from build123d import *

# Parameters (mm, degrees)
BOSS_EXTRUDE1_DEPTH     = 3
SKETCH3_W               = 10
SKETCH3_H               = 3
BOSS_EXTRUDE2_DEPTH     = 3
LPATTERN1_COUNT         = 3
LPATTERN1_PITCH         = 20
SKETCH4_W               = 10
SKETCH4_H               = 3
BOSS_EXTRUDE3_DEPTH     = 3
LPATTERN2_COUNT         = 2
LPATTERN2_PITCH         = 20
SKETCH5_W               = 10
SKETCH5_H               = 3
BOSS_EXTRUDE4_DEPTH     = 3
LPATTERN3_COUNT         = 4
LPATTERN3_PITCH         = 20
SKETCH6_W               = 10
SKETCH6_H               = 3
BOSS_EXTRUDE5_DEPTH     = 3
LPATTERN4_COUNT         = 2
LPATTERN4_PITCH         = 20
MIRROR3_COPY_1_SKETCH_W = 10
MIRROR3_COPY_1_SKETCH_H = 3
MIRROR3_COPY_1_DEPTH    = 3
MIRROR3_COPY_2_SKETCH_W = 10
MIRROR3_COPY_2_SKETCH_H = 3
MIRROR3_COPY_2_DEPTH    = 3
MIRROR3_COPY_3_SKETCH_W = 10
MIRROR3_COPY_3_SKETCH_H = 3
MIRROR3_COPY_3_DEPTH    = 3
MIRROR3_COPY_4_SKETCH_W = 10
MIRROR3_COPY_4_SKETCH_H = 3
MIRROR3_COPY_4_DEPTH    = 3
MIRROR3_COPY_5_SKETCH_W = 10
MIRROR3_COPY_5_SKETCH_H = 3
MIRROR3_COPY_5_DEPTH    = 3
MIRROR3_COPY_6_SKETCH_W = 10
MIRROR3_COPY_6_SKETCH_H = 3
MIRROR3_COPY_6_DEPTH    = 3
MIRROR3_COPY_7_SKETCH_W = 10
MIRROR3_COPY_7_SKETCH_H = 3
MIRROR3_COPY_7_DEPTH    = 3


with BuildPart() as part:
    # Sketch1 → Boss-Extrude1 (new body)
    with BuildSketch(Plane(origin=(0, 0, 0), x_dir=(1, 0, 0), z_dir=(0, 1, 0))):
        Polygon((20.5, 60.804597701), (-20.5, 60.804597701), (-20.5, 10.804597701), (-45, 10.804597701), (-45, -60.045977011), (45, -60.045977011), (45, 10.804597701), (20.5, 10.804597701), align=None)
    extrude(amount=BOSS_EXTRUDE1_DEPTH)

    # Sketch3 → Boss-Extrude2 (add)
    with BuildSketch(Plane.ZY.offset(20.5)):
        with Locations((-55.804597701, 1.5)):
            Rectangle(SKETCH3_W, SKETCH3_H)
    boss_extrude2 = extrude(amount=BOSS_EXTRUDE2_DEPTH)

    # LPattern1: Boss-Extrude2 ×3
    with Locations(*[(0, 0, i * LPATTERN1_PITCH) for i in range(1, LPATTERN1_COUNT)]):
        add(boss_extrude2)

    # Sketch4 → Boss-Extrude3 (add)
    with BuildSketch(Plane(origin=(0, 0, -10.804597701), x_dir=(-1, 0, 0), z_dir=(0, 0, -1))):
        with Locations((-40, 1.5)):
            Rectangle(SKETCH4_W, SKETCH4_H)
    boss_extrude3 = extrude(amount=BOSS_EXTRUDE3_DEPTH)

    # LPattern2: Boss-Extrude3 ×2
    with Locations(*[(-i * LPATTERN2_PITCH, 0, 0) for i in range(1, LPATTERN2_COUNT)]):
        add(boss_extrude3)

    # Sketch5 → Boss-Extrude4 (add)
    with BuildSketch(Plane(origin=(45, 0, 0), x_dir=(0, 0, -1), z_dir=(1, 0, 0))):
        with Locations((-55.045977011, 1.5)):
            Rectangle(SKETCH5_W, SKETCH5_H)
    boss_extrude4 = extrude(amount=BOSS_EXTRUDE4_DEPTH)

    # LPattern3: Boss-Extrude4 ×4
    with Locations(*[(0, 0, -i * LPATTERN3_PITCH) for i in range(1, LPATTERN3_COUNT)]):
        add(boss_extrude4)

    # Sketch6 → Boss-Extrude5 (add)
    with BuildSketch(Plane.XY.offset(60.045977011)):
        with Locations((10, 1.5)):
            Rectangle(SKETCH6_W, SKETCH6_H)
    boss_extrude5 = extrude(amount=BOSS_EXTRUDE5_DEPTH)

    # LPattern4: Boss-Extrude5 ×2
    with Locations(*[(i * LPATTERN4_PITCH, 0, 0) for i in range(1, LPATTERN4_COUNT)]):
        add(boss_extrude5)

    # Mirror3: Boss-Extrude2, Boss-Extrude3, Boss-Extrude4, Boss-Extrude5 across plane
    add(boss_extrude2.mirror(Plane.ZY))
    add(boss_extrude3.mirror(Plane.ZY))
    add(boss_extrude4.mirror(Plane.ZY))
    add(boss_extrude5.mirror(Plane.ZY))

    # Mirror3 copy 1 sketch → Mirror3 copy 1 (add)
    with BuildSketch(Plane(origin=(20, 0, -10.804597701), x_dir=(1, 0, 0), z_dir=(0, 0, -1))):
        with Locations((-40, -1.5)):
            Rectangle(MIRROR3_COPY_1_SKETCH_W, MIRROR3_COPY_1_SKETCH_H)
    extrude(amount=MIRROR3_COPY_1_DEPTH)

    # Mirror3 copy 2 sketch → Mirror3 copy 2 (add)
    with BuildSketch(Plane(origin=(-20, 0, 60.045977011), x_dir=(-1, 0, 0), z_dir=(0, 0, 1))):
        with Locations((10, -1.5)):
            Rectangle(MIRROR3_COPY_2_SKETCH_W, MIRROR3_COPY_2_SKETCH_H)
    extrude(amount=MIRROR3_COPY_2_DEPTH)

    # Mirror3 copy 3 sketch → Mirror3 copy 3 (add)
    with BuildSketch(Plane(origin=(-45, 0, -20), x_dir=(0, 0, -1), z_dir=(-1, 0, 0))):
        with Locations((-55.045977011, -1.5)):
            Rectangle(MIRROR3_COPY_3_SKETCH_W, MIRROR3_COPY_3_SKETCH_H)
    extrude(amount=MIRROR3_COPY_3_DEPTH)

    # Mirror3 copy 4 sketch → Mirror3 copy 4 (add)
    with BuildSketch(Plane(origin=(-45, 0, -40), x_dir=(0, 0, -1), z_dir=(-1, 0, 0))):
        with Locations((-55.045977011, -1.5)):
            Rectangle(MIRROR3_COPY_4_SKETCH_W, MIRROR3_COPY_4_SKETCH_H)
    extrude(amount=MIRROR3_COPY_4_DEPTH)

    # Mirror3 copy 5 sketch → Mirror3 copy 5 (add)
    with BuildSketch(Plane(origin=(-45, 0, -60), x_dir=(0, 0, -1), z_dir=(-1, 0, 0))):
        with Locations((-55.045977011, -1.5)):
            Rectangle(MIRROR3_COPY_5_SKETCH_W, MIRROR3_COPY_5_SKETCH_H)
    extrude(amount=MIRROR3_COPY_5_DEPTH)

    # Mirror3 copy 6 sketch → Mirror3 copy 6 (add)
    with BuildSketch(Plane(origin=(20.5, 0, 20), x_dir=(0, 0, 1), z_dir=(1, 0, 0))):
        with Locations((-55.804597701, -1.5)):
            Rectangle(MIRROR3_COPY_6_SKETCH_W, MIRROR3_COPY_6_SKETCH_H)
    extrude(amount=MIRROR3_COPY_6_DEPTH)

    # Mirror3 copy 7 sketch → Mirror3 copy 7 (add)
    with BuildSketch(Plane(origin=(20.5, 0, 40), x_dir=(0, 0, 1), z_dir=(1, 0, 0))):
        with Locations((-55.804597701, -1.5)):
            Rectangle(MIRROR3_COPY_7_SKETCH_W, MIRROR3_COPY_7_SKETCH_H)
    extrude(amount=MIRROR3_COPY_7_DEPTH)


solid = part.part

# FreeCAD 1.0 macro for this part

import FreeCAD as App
import Part
import Sketcher

V = App.Vector


def add_polygon(sketch, points):
    """Adds a closed chain of lines whose ends are joined by coincident constraints."""
    first, n = sketch.GeometryCount, len(points)
    for a, b in zip(points, points[1:] + points[:1]):
        sketch.addGeometry(Part.LineSegment(App.Vector(*a, 0), App.Vector(*b, 0)), False)
    for i in range(n):
        sketch.addConstraint(Sketcher.Constraint("Coincident", first + i, 2, first + (i + 1) % n, 1))

doc = App.newDocument("Part")
body = doc.addObject("PartDesign::Body", "Body")

sketch1 = body.newObject("Sketcher::SketchObject", "Sketch")
sketch1.AttachmentSupport = (doc.getObject("XZ_Plane"), [""])
sketch1.MapMode = "FlatFace"
add_polygon(sketch1, [(20, -61), (-20, -61), (-20, -11), (-45, -11), (-45, 60), (45, 60), (45, -11), (20, -11)])
sketch1.addConstraint(Sketcher.Constraint("Horizontal", 0))
sketch1.addConstraint(Sketcher.Constraint("Vertical", 1))
sketch1.addConstraint(Sketcher.Constraint("Horizontal", 2))
sketch1.addConstraint(Sketcher.Constraint("Vertical", 3))
sketch1.addConstraint(Sketcher.Constraint("Horizontal", 4))
sketch1.addConstraint(Sketcher.Constraint("Vertical", 5))
sketch1.addConstraint(Sketcher.Constraint("Horizontal", 6))
sketch1.addConstraint(Sketcher.Constraint("Vertical", 7))
sketch1.addConstraint(Sketcher.Constraint("Symmetric", 2, 2, 5, 2, -2))
sketch1.addConstraint(Sketcher.Constraint("Equal", 2, 6))
sketch1.addConstraint(Sketcher.Constraint("DistanceX", 0, 2, 0, 1, 41.0))
sketch1.addConstraint(Sketcher.Constraint("DistanceX", 4, 1, 4, 2, 90.0))
sketch1.addConstraint(Sketcher.Constraint("DistanceY", 1, 1, 1, 2, 50.0))
sketch1.addConstraint(Sketcher.Constraint("DistanceY", 3, 1, 3, 2, 70.850575))
sketch1.addConstraint(Sketcher.Constraint("DistanceY", 0, 2, -1, 1, 60.804598))
pad1 = body.newObject("PartDesign::Pad", "Pad")
pad1.Profile = sketch1
pad1.Length = 3
pad1.Reversed = True

sketch2 = body.newObject("Sketcher::SketchObject", "Sketch001")
sketch2.AttachmentSupport = (doc.getObject("YZ_Plane"), [""])
sketch2.MapMode = "FlatFace"
sketch2.AttachmentOffset = App.Placement(V(0, 0, -20.5), App.Rotation())
add_polygon(sketch2, [(3, -60.8), (0, -60.8), (0, -50.8), (3, -50.8)])
sketch2.addConstraint(Sketcher.Constraint("Horizontal", 0))
sketch2.addConstraint(Sketcher.Constraint("Vertical", 1))
sketch2.addConstraint(Sketcher.Constraint("Horizontal", 2))
sketch2.addConstraint(Sketcher.Constraint("Vertical", 3))
sketch2.addConstraint(Sketcher.Constraint("PointOnObject", 0, 2, -2))
sketch2.addConstraint(Sketcher.Constraint("DistanceX", 0, 2, 0, 1, 3.0))
sketch2.addConstraint(Sketcher.Constraint("DistanceY", 1, 1, 1, 2, 10.0))
sketch2.addConstraint(Sketcher.Constraint("DistanceY", 0, 2, -1, 1, 60.804598))
pad2 = body.newObject("PartDesign::Pad", "Pad001")
pad2.Profile = sketch2
pad2.Length = 3
pad2.Reversed = True
doc.recompute()

linearpattern = body.newObject("PartDesign::LinearPattern", "LinearPattern")
linearpattern.Originals = [pad2]
linearpattern.Direction = (doc.getObject("Z_Axis"), [""])
linearpattern.Mode = "offset"
linearpattern.Offset = 20
linearpattern.Occurrences = 3
body.Tip = linearpattern

sketch3 = body.newObject("Sketcher::SketchObject", "Sketch002")
sketch3.AttachmentSupport = (doc.getObject("XY_Plane"), [""])
sketch3.MapMode = "FlatFace"
sketch3.AttachmentOffset = App.Placement(V(0, 0, -10.804598), App.Rotation())
add_polygon(sketch3, [(45, 3), (45, 0), (35, 0), (35, 3)])
sketch3.addConstraint(Sketcher.Constraint("Vertical", 0))
sketch3.addConstraint(Sketcher.Constraint("Horizontal", 1))
sketch3.addConstraint(Sketcher.Constraint("Vertical", 2))
sketch3.addConstraint(Sketcher.Constraint("Horizontal", 3))
sketch3.addConstraint(Sketcher.Constraint("PointOnObject", 0, 2, -1))
sketch3.addConstraint(Sketcher.Constraint("DistanceX", 1, 2, 1, 1, 10.0))
sketch3.addConstraint(Sketcher.Constraint("DistanceY", 0, 2, 0, 1, 3.0))
sketch3.addConstraint(Sketcher.Constraint("DistanceX", -1, 1, 0, 2, 45.0))
pad3 = body.newObject("PartDesign::Pad", "Pad002")
pad3.Profile = sketch3
pad3.Length = 3
pad3.Reversed = True
doc.recompute()

linearpattern2 = body.newObject("PartDesign::LinearPattern", "LinearPattern001")
linearpattern2.Originals = [pad3]
linearpattern2.Direction = (doc.getObject("X_Axis"), [""])
linearpattern2.Mode = "offset"
linearpattern2.Offset = 20
linearpattern2.Occurrences = 2
linearpattern2.Reversed = True
body.Tip = linearpattern2

sketch4 = body.newObject("Sketcher::SketchObject", "Sketch003")
sketch4.AttachmentSupport = (doc.getObject("YZ_Plane"), [""])
sketch4.MapMode = "FlatFace"
sketch4.AttachmentOffset = App.Placement(V(0, 0, 45), App.Rotation())
add_polygon(sketch4, [(3, 60), (0, 60), (0, 50), (3, 50)])
sketch4.addConstraint(Sketcher.Constraint("Horizontal", 0))
sketch4.addConstraint(Sketcher.Constraint("Vertical", 1))
sketch4.addConstraint(Sketcher.Constraint("Horizontal", 2))
sketch4.addConstraint(Sketcher.Constraint("Vertical", 3))
sketch4.addConstraint(Sketcher.Constraint("PointOnObject", 0, 2, -2))
sketch4.addConstraint(Sketcher.Constraint("DistanceX", 0, 2, 0, 1, 3.0))
sketch4.addConstraint(Sketcher.Constraint("DistanceY", 1, 2, 1, 1, 10.0))
sketch4.addConstraint(Sketcher.Constraint("DistanceY", -1, 1, 0, 2, 60.045977))
pad4 = body.newObject("PartDesign::Pad", "Pad003")
pad4.Profile = sketch4
pad4.Length = 3
doc.recompute()

linearpattern3 = body.newObject("PartDesign::LinearPattern", "LinearPattern002")
linearpattern3.Originals = [pad4]
linearpattern3.Direction = (doc.getObject("Z_Axis"), [""])
linearpattern3.Mode = "offset"
linearpattern3.Offset = 20
linearpattern3.Occurrences = 4
linearpattern3.Reversed = True
body.Tip = linearpattern3

sketch5 = body.newObject("Sketcher::SketchObject", "Sketch004")
sketch5.AttachmentSupport = (doc.getObject("XY_Plane"), [""])
sketch5.MapMode = "FlatFace"
sketch5.AttachmentOffset = App.Placement(V(0, 0, 60.045977), App.Rotation())
add_polygon(sketch5, [(5, 3), (5, 0), (15, 0), (15, 3)])
sketch5.addConstraint(Sketcher.Constraint("Vertical", 0))
sketch5.addConstraint(Sketcher.Constraint("Horizontal", 1))
sketch5.addConstraint(Sketcher.Constraint("Vertical", 2))
sketch5.addConstraint(Sketcher.Constraint("Horizontal", 3))
sketch5.addConstraint(Sketcher.Constraint("PointOnObject", 0, 2, -1))
sketch5.addConstraint(Sketcher.Constraint("DistanceX", 1, 1, 1, 2, 10.0))
sketch5.addConstraint(Sketcher.Constraint("DistanceY", 0, 2, 0, 1, 3.0))
sketch5.addConstraint(Sketcher.Constraint("DistanceX", -1, 1, 0, 2, 5.0))
pad5 = body.newObject("PartDesign::Pad", "Pad004")
pad5.Profile = sketch5
pad5.Length = 3
doc.recompute()

linearpattern4 = body.newObject("PartDesign::LinearPattern", "LinearPattern003")
linearpattern4.Originals = [pad5]
linearpattern4.Direction = (doc.getObject("X_Axis"), [""])
linearpattern4.Mode = "offset"
linearpattern4.Offset = 20
linearpattern4.Occurrences = 2
body.Tip = linearpattern4
doc.recompute()

mirrored = body.newObject("PartDesign::Mirrored", "Mirrored")
mirrored.Originals = [pad2, pad3, pad4, pad5]
mirrored.MirrorPlane = (doc.getObject("YZ_Plane"), [""])
body.Tip = mirrored

sketch6 = body.newObject("Sketcher::SketchObject", "Sketch005")
sketch6.AttachmentSupport = (doc.getObject("XY_Plane"), [""])
sketch6.MapMode = "FlatFace"
sketch6.AttachmentOffset = App.Placement(V(0, 0, -10.804598), App.Rotation())
add_polygon(sketch6, [(-25, 0), (-25, 3), (-15, 3), (-15, 0)])
sketch6.addConstraint(Sketcher.Constraint("Vertical", 0))
sketch6.addConstraint(Sketcher.Constraint("Horizontal", 1))
sketch6.addConstraint(Sketcher.Constraint("Vertical", 2))
sketch6.addConstraint(Sketcher.Constraint("Horizontal", 3))
sketch6.addConstraint(Sketcher.Constraint("PointOnObject", 2, 2, -1))
sketch6.addConstraint(Sketcher.Constraint("DistanceX", 1, 1, 1, 2, 10.0))
sketch6.addConstraint(Sketcher.Constraint("DistanceY", 0, 1, 0, 2, 3.0))
sketch6.addConstraint(Sketcher.Constraint("DistanceX", 0, 2, -1, 1, 25.0))
pad6 = body.newObject("PartDesign::Pad", "Pad005")
pad6.Profile = sketch6
pad6.Length = 3
pad6.Reversed = True

sketch7 = body.newObject("Sketcher::SketchObject", "Sketch006")
sketch7.AttachmentSupport = (doc.getObject("XY_Plane"), [""])
sketch7.MapMode = "FlatFace"
sketch7.AttachmentOffset = App.Placement(V(0, 0, 60.045977), App.Rotation())
add_polygon(sketch7, [(-25, 0), (-25, 3), (-35, 3), (-35, 0)])
sketch7.addConstraint(Sketcher.Constraint("Vertical", 0))
sketch7.addConstraint(Sketcher.Constraint("Horizontal", 1))
sketch7.addConstraint(Sketcher.Constraint("Vertical", 2))
sketch7.addConstraint(Sketcher.Constraint("Horizontal", 3))
sketch7.addConstraint(Sketcher.Constraint("PointOnObject", 2, 2, -1))
sketch7.addConstraint(Sketcher.Constraint("DistanceX", 1, 2, 1, 1, 10.0))
sketch7.addConstraint(Sketcher.Constraint("DistanceY", 0, 1, 0, 2, 3.0))
sketch7.addConstraint(Sketcher.Constraint("DistanceX", 0, 2, -1, 1, 25.0))
pad7 = body.newObject("PartDesign::Pad", "Pad006")
pad7.Profile = sketch7
pad7.Length = 3

sketch8 = body.newObject("Sketcher::SketchObject", "Sketch007")
sketch8.AttachmentSupport = (doc.getObject("YZ_Plane"), [""])
sketch8.MapMode = "FlatFace"
sketch8.AttachmentOffset = App.Placement(V(0, 0, -45), App.Rotation())
add_polygon(sketch8, [(0, 40), (3, 40), (3, 30), (0, 30)])
sketch8.addConstraint(Sketcher.Constraint("Horizontal", 0))
sketch8.addConstraint(Sketcher.Constraint("Vertical", 1))
sketch8.addConstraint(Sketcher.Constraint("Horizontal", 2))
sketch8.addConstraint(Sketcher.Constraint("Vertical", 3))
sketch8.addConstraint(Sketcher.Constraint("PointOnObject", 2, 2, -2))
sketch8.addConstraint(Sketcher.Constraint("DistanceX", 0, 1, 0, 2, 3.0))
sketch8.addConstraint(Sketcher.Constraint("DistanceY", 1, 2, 1, 1, 10.0))
sketch8.addConstraint(Sketcher.Constraint("DistanceY", -1, 1, 0, 2, 40.045977))
pad8 = body.newObject("PartDesign::Pad", "Pad007")
pad8.Profile = sketch8
pad8.Length = 3
pad8.Reversed = True

sketch9 = body.newObject("Sketcher::SketchObject", "Sketch008")
sketch9.AttachmentSupport = (doc.getObject("YZ_Plane"), [""])
sketch9.MapMode = "FlatFace"
sketch9.AttachmentOffset = App.Placement(V(0, 0, -45), App.Rotation())
add_polygon(sketch9, [(0, 20), (3, 20), (3, 10), (0, 10)])
sketch9.addConstraint(Sketcher.Constraint("Horizontal", 0))
sketch9.addConstraint(Sketcher.Constraint("Vertical", 1))
sketch9.addConstraint(Sketcher.Constraint("Horizontal", 2))
sketch9.addConstraint(Sketcher.Constraint("Vertical", 3))
sketch9.addConstraint(Sketcher.Constraint("PointOnObject", 2, 2, -2))
sketch9.addConstraint(Sketcher.Constraint("DistanceX", 0, 1, 0, 2, 3.0))
sketch9.addConstraint(Sketcher.Constraint("DistanceY", 1, 2, 1, 1, 10.0))
sketch9.addConstraint(Sketcher.Constraint("DistanceY", -1, 1, 0, 2, 20.045977))
pad9 = body.newObject("PartDesign::Pad", "Pad008")
pad9.Profile = sketch9
pad9.Length = 3
pad9.Reversed = True

sketch10 = body.newObject("Sketcher::SketchObject", "Sketch009")
sketch10.AttachmentSupport = (doc.getObject("YZ_Plane"), [""])
sketch10.MapMode = "FlatFace"
sketch10.AttachmentOffset = App.Placement(V(0, 0, -45), App.Rotation())
add_polygon(sketch10, [(0, 0), (3, 0), (3, -10), (0, -10)])
sketch10.addConstraint(Sketcher.Constraint("Horizontal", 0))
sketch10.addConstraint(Sketcher.Constraint("Vertical", 1))
sketch10.addConstraint(Sketcher.Constraint("Horizontal", 2))
sketch10.addConstraint(Sketcher.Constraint("Vertical", 3))
sketch10.addConstraint(Sketcher.Constraint("PointOnObject", 2, 2, -2))
sketch10.addConstraint(Sketcher.Constraint("DistanceX", 0, 1, 0, 2, 3.0))
sketch10.addConstraint(Sketcher.Constraint("DistanceY", 1, 2, 1, 1, 10.0))
sketch10.addConstraint(Sketcher.Constraint("DistanceY", -1, 1, 0, 2, 0.045977))
pad10 = body.newObject("PartDesign::Pad", "Pad009")
pad10.Profile = sketch10
pad10.Length = 3
pad10.Reversed = True

sketch11 = body.newObject("Sketcher::SketchObject", "Sketch010")
sketch11.AttachmentSupport = (doc.getObject("YZ_Plane"), [""])
sketch11.MapMode = "FlatFace"
sketch11.AttachmentOffset = App.Placement(V(0, 0, 20.5), App.Rotation())
add_polygon(sketch11, [(0, -40.8), (3, -40.8), (3, -30.8), (0, -30.8)])
sketch11.addConstraint(Sketcher.Constraint("Horizontal", 0))
sketch11.addConstraint(Sketcher.Constraint("Vertical", 1))
sketch11.addConstraint(Sketcher.Constraint("Horizontal", 2))
sketch11.addConstraint(Sketcher.Constraint("Vertical", 3))
sketch11.addConstraint(Sketcher.Constraint("PointOnObject", 2, 2, -2))
sketch11.addConstraint(Sketcher.Constraint("DistanceX", 0, 1, 0, 2, 3.0))
sketch11.addConstraint(Sketcher.Constraint("DistanceY", 1, 1, 1, 2, 10.0))
sketch11.addConstraint(Sketcher.Constraint("DistanceY", 0, 2, -1, 1, 40.804598))
pad11 = body.newObject("PartDesign::Pad", "Pad010")
pad11.Profile = sketch11
pad11.Length = 3

sketch12 = body.newObject("Sketcher::SketchObject", "Sketch011")
sketch12.AttachmentSupport = (doc.getObject("YZ_Plane"), [""])
sketch12.MapMode = "FlatFace"
sketch12.AttachmentOffset = App.Placement(V(0, 0, 20.5), App.Rotation())
add_polygon(sketch12, [(0, -20.8), (3, -20.8), (3, -10.8), (0, -10.8)])
sketch12.addConstraint(Sketcher.Constraint("Horizontal", 0))
sketch12.addConstraint(Sketcher.Constraint("Vertical", 1))
sketch12.addConstraint(Sketcher.Constraint("Horizontal", 2))
sketch12.addConstraint(Sketcher.Constraint("Vertical", 3))
sketch12.addConstraint(Sketcher.Constraint("PointOnObject", 2, 2, -2))
sketch12.addConstraint(Sketcher.Constraint("DistanceX", 0, 1, 0, 2, 3.0))
sketch12.addConstraint(Sketcher.Constraint("DistanceY", 1, 1, 1, 2, 10.0))
sketch12.addConstraint(Sketcher.Constraint("DistanceY", 0, 2, -1, 1, 20.804598))
pad12 = body.newObject("PartDesign::Pad", "Pad011")
pad12.Profile = sketch12
pad12.Length = 3

doc.recompute()
